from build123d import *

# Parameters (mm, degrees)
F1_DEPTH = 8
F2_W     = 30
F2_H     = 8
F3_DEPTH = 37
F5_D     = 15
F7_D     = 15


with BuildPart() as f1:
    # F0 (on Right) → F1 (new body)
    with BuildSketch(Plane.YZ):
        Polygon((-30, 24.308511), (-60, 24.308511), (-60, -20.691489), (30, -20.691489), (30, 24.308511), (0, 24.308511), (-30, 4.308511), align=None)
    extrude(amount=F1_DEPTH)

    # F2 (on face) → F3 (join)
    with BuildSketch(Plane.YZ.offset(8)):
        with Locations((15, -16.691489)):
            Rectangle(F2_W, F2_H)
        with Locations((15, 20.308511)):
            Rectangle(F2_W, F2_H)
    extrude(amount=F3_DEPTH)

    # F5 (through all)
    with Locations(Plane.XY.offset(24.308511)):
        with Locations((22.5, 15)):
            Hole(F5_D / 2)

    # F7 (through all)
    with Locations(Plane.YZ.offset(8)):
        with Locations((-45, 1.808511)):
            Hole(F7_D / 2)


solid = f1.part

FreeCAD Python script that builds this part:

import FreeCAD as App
import Part
import Sketcher

doc = App.newDocument("Part")
params = doc.addObject("Spreadsheet::Sheet", "Params")
for row, (alias, value) in enumerate([
    ("sketch1_width", "30 mm"),
    ("sketch1_height", "45 mm"),
    ("sketch1_height2", "20 mm"),
    ("pad1_length", "8 mm"),
    ("sketch2_width", "30 mm"),
    ("sketch2_height", "8 mm"),
    ("pad2_length", "37 mm"),
    ("sketch3_diameter", "15 mm"),
    ("hole_diameter", "15 mm"),
    ("sketch4_diameter", "15 mm"),
    ("hole2_diameter", "15 mm"),
], start=1):
    params.set(f"A{row}", alias)
    params.set(f"B{row}", "=" + value)
    params.setAlias(f"B{row}", alias)

body = doc.addObject("PartDesign::Body", "Body")

sketch1 = body.newObject("Sketcher::SketchObject", "Sketch")
sketch1.AttachmentSupport = (doc.getObject("YZ_Plane"), [""])
sketch1.MapMode = "FlatFace"
sketch1.addGeometry(Part.LineSegment(App.Vector(-30, 24, 0), App.Vector(-60, 24, 0)), False)
sketch1.addGeometry(Part.LineSegment(App.Vector(-60, 24, 0), App.Vector(-60, -21, 0)), False)
sketch1.addGeometry(Part.LineSegment(App.Vector(-60, -21, 0), App.Vector(30, -21, 0)), False)
sketch1.addGeometry(Part.LineSegment(App.Vector(30, -21, 0), App.Vector(30, 24, 0)), False)
sketch1.addGeometry(Part.LineSegment(App.Vector(30, 24, 0), App.Vector(0, 24, 0)), False)
sketch1.addGeometry(Part.LineSegment(App.Vector(0, 24, 0), App.Vector(-30, 4, 0)), False)
sketch1.addGeometry(Part.LineSegment(App.Vector(-30, 4, 0), App.Vector(-30, 24, 0)), False)
sketch1.addConstraint(Sketcher.Constraint("Coincident", 0, 2, 1, 1))
sketch1.addConstraint(Sketcher.Constraint("Coincident", 1, 2, 2, 1))
sketch1.addConstraint(Sketcher.Constraint("Coincident", 2, 2, 3, 1))
sketch1.addConstraint(Sketcher.Constraint("Coincident", 3, 2, 4, 1))
sketch1.addConstraint(Sketcher.Constraint("Coincident", 4, 2, 5, 1))
sketch1.addConstraint(Sketcher.Constraint("Coincident", 5, 2, 6, 1))
sketch1.addConstraint(Sketcher.Constraint("Coincident", 6, 2, 0, 1))
sketch1.addConstraint(Sketcher.Constraint("Horizontal", 0))
sketch1.addConstraint(Sketcher.Constraint("Vertical", 1))
sketch1.addConstraint(Sketcher.Constraint("Horizontal", 2))
sketch1.addConstraint(Sketcher.Constraint("Vertical", 3))
sketch1.addConstraint(Sketcher.Constraint("Horizontal", 4))
sketch1.addConstraint(Sketcher.Constraint("Vertical", 6))
sketch1.addConstraint(Sketcher.Constraint("Symmetric", 3, 2, 6, 2, -2))
sketch1.addConstraint(Sketcher.Constraint("PointOnObject", 4, 2, -2))
sketch1.addConstraint(Sketcher.Constraint("Equal", 0, 4))
sketch1.addConstraint(Sketcher.Constraint("DistanceX", 0, 2, 0, 1, 30.0))
sketch1.addConstraint(Sketcher.Constraint("DistanceY", 1, 2, 1, 1, 45.0))
sketch1.addConstraint(Sketcher.Constraint("DistanceY", 6, 1, 6, 2, 20.0))
sketch1.addConstraint(Sketcher.Constraint("DistanceY", -1, 1, 0, 2, 24.308511))
sketch1.setExpression("Constraints[16]", "Params.sketch1_width")
sketch1.setExpression("Constraints[17]", "Params.sketch1_height")
sketch1.setExpression("Constraints[18]", "Params.sketch1_height2")
pad1 = body.newObject("PartDesign::Pad", "Pad")
pad1.Profile = sketch1
pad1.setExpression("Length", "Params.pad1_length")

sketch2 = body.newObject("Sketcher::SketchObject", "Sketch001")
sketch2.AttachmentSupport = (doc.getObject("YZ_Plane"), [""])
sketch2.MapMode = "FlatFace"
sketch2.AttachmentOffset = App.Placement(App.Vector(0, 0, 8), App.Rotation())
sketch2.addGeometry(Part.LineSegment(App.Vector(0, -13, 0), App.Vector(0, -21, 0)), False)
sketch2.addGeometry(Part.LineSegment(App.Vector(0, -21, 0), App.Vector(30, -21, 0)), False)
sketch2.addGeometry(Part.LineSegment(App.Vector(30, -21, 0), App.Vector(30, -13, 0)), False)
sketch2.addGeometry(Part.LineSegment(App.Vector(30, -13, 0), App.Vector(0, -13, 0)), False)
sketch2.addGeometry(Part.LineSegment(App.Vector(0, 24, 0), App.Vector(0, 16, 0)), False)
sketch2.addGeometry(Part.LineSegment(App.Vector(0, 16, 0), App.Vector(30, 16, 0)), False)
sketch2.addGeometry(Part.LineSegment(App.Vector(30, 16, 0), App.Vector(30, 24, 0)), False)
sketch2.addGeometry(Part.LineSegment(App.Vector(30, 24, 0), App.Vector(0, 24, 0)), False)
sketch2.addConstraint(Sketcher.Constraint("Coincident", 0, 2, 1, 1))
sketch2.addConstraint(Sketcher.Constraint("Coincident", 1, 2, 2, 1))
sketch2.addConstraint(Sketcher.Constraint("Coincident", 2, 2, 3, 1))
sketch2.addConstraint(Sketcher.Constraint("Coincident", 3, 2, 0, 1))
sketch2.addConstraint(Sketcher.Constraint("Coincident", 4, 2, 5, 1))
sketch2.addConstraint(Sketcher.Constraint("Coincident", 5, 2, 6, 1))
sketch2.addConstraint(Sketcher.Constraint("Coincident", 6, 2, 7, 1))
sketch2.addConstraint(Sketcher.Constraint("Coincident", 7, 2, 4, 1))
sketch2.addConstraint(Sketcher.Constraint("Vertical", 0))
sketch2.addConstraint(Sketcher.Constraint("Horizontal", 1))
sketch2.addConstraint(Sketcher.Constraint("Vertical", 2))
sketch2.addConstraint(Sketcher.Constraint("Horizontal", 3))
sketch2.addConstraint(Sketcher.Constraint("Vertical", 4))
sketch2.addConstraint(Sketcher.Constraint("Horizontal", 5))
sketch2.addConstraint(Sketcher.Constraint("Vertical", 6))
sketch2.addConstraint(Sketcher.Constraint("Horizontal", 7))
sketch2.addConstraint(Sketcher.Constraint("PointOnObject", 0, 2, -2))
sketch2.addConstraint(Sketcher.Constraint("PointOnObject", 4, 2, -2))
sketch2.addConstraint(Sketcher.Constraint("Vertical", 2, 2, 5, 2))
sketch2.addConstraint(Sketcher.Constraint("Equal", 2, 4))
sketch2.addConstraint(Sketcher.Constraint("DistanceX", 1, 1, 1, 2, 30.0))
sketch2.addConstraint(Sketcher.Constraint("DistanceY", 0, 2, 0, 1, 8.0))
sketch2.addConstraint(Sketcher.Constraint("DistanceY", 3, 2, 4, 2, 29.0))
sketch2.addConstraint(Sketcher.Constraint("DistanceY", 0, 2, -1, 1, 20.691489))
sketch2.setExpression("Constraints[20]", "Params.sketch2_width")
sketch2.setExpression("Constraints[21]", "Params.sketch2_height")
pad2 = body.newObject("PartDesign::Pad", "Pad001")
pad2.Profile = sketch2
pad2.setExpression("Length", "Params.pad2_length")

sketch3 = body.newObject("Sketcher::SketchObject", "Sketch002")
sketch3.AttachmentSupport = (doc.getObject("XY_Plane"), [""])
sketch3.MapMode = "FlatFace"
sketch3.AttachmentOffset = App.Placement(App.Vector(0, 0, 24.308511), App.Rotation())
sketch3.addGeometry(Part.Circle(App.Vector(22, 15, 0), App.Vector(0, 0, 1), 8), False)
sketch3.addConstraint(Sketcher.Constraint("Diameter", 0, 15.0))
sketch3.addConstraint(Sketcher.Constraint("DistanceY", -1, 1, 0, 3, 15.0))
sketch3.addConstraint(Sketcher.Constraint("DistanceX", -1, 1, 0, 3, 22.5))
sketch3.setExpression("Constraints[0]", "Params.sketch3_diameter")
doc.recompute()
hole = body.newObject("PartDesign::Hole", "Hole")
hole.Profile = sketch3
hole.ThreadType = "None"
hole.setExpression("Diameter", "Params.hole_diameter")
hole.DepthType = "ThroughAll"

sketch4 = body.newObject("Sketcher::SketchObject", "Sketch003")
sketch4.AttachmentSupport = (doc.getObject("YZ_Plane"), [""])
sketch4.MapMode = "FlatFace"
sketch4.AttachmentOffset = App.Placement(App.Vector(0, 0, 8), App.Rotation())
sketch4.addGeometry(Part.Circle(App.Vector(-45, 2, 0), App.Vector(0, 0, 1), 8), False)
sketch4.addConstraint(Sketcher.Constraint("Diameter", 0, 15.0))
sketch4.addConstraint(Sketcher.Constraint("DistanceX", 0, 3, -1, 1, 45.0))
sketch4.addConstraint(Sketcher.Constraint("DistanceY", -1, 1, 0, 3, 1.808511))
sketch4.setExpression("Constraints[0]", "Params.sketch4_diameter")
doc.recompute()
hole2 = body.newObject("PartDesign::Hole", "Hole001")
hole2.Profile = sketch4
hole2.ThreadType = "None"
hole2.setExpression("Diameter", "Params.hole2_diameter")
hole2.DepthType = "ThroughAll"

doc.recompute()
